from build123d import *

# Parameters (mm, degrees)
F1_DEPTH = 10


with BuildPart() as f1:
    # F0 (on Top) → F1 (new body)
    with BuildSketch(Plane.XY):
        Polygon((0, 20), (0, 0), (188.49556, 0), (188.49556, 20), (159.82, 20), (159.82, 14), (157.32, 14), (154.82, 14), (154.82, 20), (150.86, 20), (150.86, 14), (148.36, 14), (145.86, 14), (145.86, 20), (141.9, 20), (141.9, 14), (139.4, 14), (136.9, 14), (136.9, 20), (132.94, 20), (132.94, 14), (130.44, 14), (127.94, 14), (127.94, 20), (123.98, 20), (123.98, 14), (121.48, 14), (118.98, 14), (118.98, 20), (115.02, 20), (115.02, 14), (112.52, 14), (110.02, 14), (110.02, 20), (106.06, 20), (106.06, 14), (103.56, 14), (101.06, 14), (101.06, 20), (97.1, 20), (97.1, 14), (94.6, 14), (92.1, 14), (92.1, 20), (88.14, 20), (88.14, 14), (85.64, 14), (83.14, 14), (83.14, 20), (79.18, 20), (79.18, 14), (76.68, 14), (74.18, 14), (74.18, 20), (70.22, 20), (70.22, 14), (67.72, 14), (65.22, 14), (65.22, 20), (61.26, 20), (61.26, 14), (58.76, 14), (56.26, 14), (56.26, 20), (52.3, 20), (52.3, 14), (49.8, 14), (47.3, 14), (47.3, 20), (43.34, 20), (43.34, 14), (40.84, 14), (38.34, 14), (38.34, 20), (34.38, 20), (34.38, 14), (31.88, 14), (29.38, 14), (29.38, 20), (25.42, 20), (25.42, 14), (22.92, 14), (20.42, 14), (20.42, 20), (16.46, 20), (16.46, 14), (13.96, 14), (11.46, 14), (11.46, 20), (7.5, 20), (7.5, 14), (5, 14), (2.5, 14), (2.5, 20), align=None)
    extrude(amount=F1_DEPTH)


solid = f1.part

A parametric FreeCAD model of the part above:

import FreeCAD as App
import Part
import Sketcher

V = App.Vector
Q = App.Units.Quantity

doc = App.newDocument("Part")
body = doc.addObject("PartDesign::Body", "Body")

# Sketch on XY plane
sketch1 = body.newObject("Sketcher::SketchObject", "Sketch")
sketch1.AttachmentSupport = (doc.getObject("XY_Plane"), [""])
sketch1.MapMode = "FlatFace"
sketch1.addGeometry([
    Part.LineSegment(V(0, 20, 0), V(0, 0, 0)),  # 0
    Part.LineSegment(V(0, 0, 0), V(188.5, 0, 0)),  # 1
    Part.LineSegment(V(188.5, 0, 0), V(188.5, 20, 0)),  # 2
    Part.LineSegment(V(188.5, 20, 0), V(159.8, 20, 0)),  # 3
    Part.LineSegment(V(159.8, 20, 0), V(159.8, 14, 0)),  # 4
    Part.LineSegment(V(159.8, 14, 0), V(154.8, 14, 0)),  # 5
    Part.LineSegment(V(154.8, 14, 0), V(154.8, 20, 0)),  # 6
    Part.LineSegment(V(154.8, 20, 0), V(150.9, 20, 0)),  # 7
    Part.LineSegment(V(150.9, 20, 0), V(150.9, 14, 0)),  # 8
    Part.LineSegment(V(150.9, 14, 0), V(145.9, 14, 0)),  # 9
    Part.LineSegment(V(145.9, 14, 0), V(145.9, 20, 0)),  # 10
    Part.LineSegment(V(145.9, 20, 0), V(141.9, 20, 0)),  # 11
    Part.LineSegment(V(141.9, 20, 0), V(141.9, 14, 0)),  # 12
    Part.LineSegment(V(141.9, 14, 0), V(136.9, 14, 0)),  # 13
    Part.LineSegment(V(136.9, 14, 0), V(136.9, 20, 0)),  # 14
    Part.LineSegment(V(136.9, 20, 0), V(132.9, 20, 0)),  # 15
    Part.LineSegment(V(132.9, 20, 0), V(132.9, 14, 0)),  # 16
    Part.LineSegment(V(132.9, 14, 0), V(127.9, 14, 0)),  # 17
    Part.LineSegment(V(127.9, 14, 0), V(127.9, 20, 0)),  # 18
    Part.LineSegment(V(127.9, 20, 0), V(124, 20, 0)),  # 19
    Part.LineSegment(V(124, 20, 0), V(124, 14, 0)),  # 20
    Part.LineSegment(V(124, 14, 0), V(119, 14, 0)),  # 21
    Part.LineSegment(V(119, 14, 0), V(119, 20, 0)),  # 22
    Part.LineSegment(V(119, 20, 0), V(115, 20, 0)),  # 23
    Part.LineSegment(V(115, 20, 0), V(115, 14, 0)),  # 24
    Part.LineSegment(V(115, 14, 0), V(110, 14, 0)),  # 25
    Part.LineSegment(V(110, 14, 0), V(110, 20, 0)),  # 26
    Part.LineSegment(V(110, 20, 0), V(106.1, 20, 0)),  # 27
    Part.LineSegment(V(106.1, 20, 0), V(106.1, 14, 0)),  # 28
    Part.LineSegment(V(106.1, 14, 0), V(101.1, 14, 0)),  # 29
    Part.LineSegment(V(101.1, 14, 0), V(101.1, 20, 0)),  # 30
    Part.LineSegment(V(101.1, 20, 0), V(97.1, 20, 0)),  # 31
    Part.LineSegment(V(97.1, 20, 0), V(97.1, 14, 0)),  # 32
    Part.LineSegment(V(97.1, 14, 0), V(92.1, 14, 0)),  # 33
    Part.LineSegment(V(92.1, 14, 0), V(92.1, 20, 0)),  # 34
    Part.LineSegment(V(92.1, 20, 0), V(88.1, 20, 0)),  # 35
    Part.LineSegment(V(88.1, 20, 0), V(88.1, 14, 0)),  # 36
    Part.LineSegment(V(88.1, 14, 0), V(83.1, 14, 0)),  # 37
    Part.LineSegment(V(83.1, 14, 0), V(83.1, 20, 0)),  # 38
    Part.LineSegment(V(83.1, 20, 0), V(79.2, 20, 0)),  # 39
    Part.LineSegment(V(79.2, 20, 0), V(79.2, 14, 0)),  # 40
    Part.LineSegment(V(79.2, 14, 0), V(74.2, 14, 0)),  # 41
    Part.LineSegment(V(74.2, 14, 0), V(74.2, 20, 0)),  # 42
    Part.LineSegment(V(74.2, 20, 0), V(70.2, 20, 0)),  # 43
    Part.LineSegment(V(70.2, 20, 0), V(70.2, 14, 0)),  # 44
    Part.LineSegment(V(70.2, 14, 0), V(65.2, 14, 0)),  # 45
    Part.LineSegment(V(65.2, 14, 0), V(65.2, 20, 0)),  # 46
    Part.LineSegment(V(65.2, 20, 0), V(61.3, 20, 0)),  # 47
    Part.LineSegment(V(61.3, 20, 0), V(61.3, 14, 0)),  # 48
    Part.LineSegment(V(61.3, 14, 0), V(56.3, 14, 0)),  # 49
    Part.LineSegment(V(56.3, 14, 0), V(56.3, 20, 0)),  # 50
    Part.LineSegment(V(56.3, 20, 0), V(52.3, 20, 0)),  # 51
    Part.LineSegment(V(52.3, 20, 0), V(52.3, 14, 0)),  # 52
    Part.LineSegment(V(52.3, 14, 0), V(47.3, 14, 0)),  # 53
    Part.LineSegment(V(47.3, 14, 0), V(47.3, 20, 0)),  # 54
    Part.LineSegment(V(47.3, 20, 0), V(43.3, 20, 0)),  # 55
    Part.LineSegment(V(43.3, 20, 0), V(43.3, 14, 0)),  # 56
    Part.LineSegment(V(43.3, 14, 0), V(38.3, 14, 0)),  # 57
    Part.LineSegment(V(38.3, 14, 0), V(38.3, 20, 0)),  # 58
    Part.LineSegment(V(38.3, 20, 0), V(34.4, 20, 0)),  # 59
    Part.LineSegment(V(34.4, 20, 0), V(34.4, 14, 0)),  # 60
    Part.LineSegment(V(34.4, 14, 0), V(29.4, 14, 0)),  # 61
    Part.LineSegment(V(29.4, 14, 0), V(29.4, 20, 0)),  # 62
    Part.LineSegment(V(29.4, 20, 0), V(25.4, 20, 0)),  # 63
    Part.LineSegment(V(25.4, 20, 0), V(25.4, 14, 0)),  # 64
    Part.LineSegment(V(25.4, 14, 0), V(20.4, 14, 0)),  # 65
    Part.LineSegment(V(20.4, 14, 0), V(20.4, 20, 0)),  # 66
    Part.LineSegment(V(20.4, 20, 0), V(16.5, 20, 0)),  # 67
    Part.LineSegment(V(16.5, 20, 0), V(16.5, 14, 0)),  # 68
    Part.LineSegment(V(16.5, 14, 0), V(11.5, 14, 0)),  # 69
    Part.LineSegment(V(11.5, 14, 0), V(11.5, 20, 0)),  # 70
    Part.LineSegment(V(11.5, 20, 0), V(7.5, 20, 0)),  # 71
    Part.LineSegment(V(7.5, 20, 0), V(7.5, 14, 0)),  # 72
    Part.LineSegment(V(7.5, 14, 0), V(2.5, 14, 0)),  # 73
    Part.LineSegment(V(2.5, 14, 0), V(2.5, 20, 0)),  # 74
    Part.LineSegment(V(2.5, 20, 0), V(0, 20, 0)),  # 75
], False)
sketch1.addConstraint([
    Sketcher.Constraint("Coincident", 0, 2, 1, 1),
    Sketcher.Constraint("Coincident", 1, 2, 2, 1),
    Sketcher.Constraint("Coincident", 2, 2, 3, 1),
    Sketcher.Constraint("Coincident", 3, 2, 4, 1),
    Sketcher.Constraint("Coincident", 4, 2, 5, 1),
    Sketcher.Constraint("Coincident", 5, 2, 6, 1),
    Sketcher.Constraint("Coincident", 6, 2, 7, 1),
    Sketcher.Constraint("Coincident", 7, 2, 8, 1),
    Sketcher.Constraint("Coincident", 8, 2, 9, 1),
    Sketcher.Constraint("Coincident", 9, 2, 10, 1),
    Sketcher.Constraint("Coincident", 10, 2, 11, 1),
    Sketcher.Constraint("Coincident", 11, 2, 12, 1),
    Sketcher.Constraint("Coincident", 12, 2, 13, 1),
    Sketcher.Constraint("Coincident", 13, 2, 14, 1),
    Sketcher.Constraint("Coincident", 14, 2, 15, 1),
    Sketcher.Constraint("Coincident", 15, 2, 16, 1),
    Sketcher.Constraint("Coincident", 16, 2, 17, 1),
    Sketcher.Constraint("Coincident", 17, 2, 18, 1),
    Sketcher.Constraint("Coincident", 18, 2, 19, 1),
    Sketcher.Constraint("Coincident", 19, 2, 20, 1),
    Sketcher.Constraint("Coincident", 20, 2, 21, 1),
    Sketcher.Constraint("Coincident", 21, 2, 22, 1),
    Sketcher.Constraint("Coincident", 22, 2, 23, 1),
    Sketcher.Constraint("Coincident", 23, 2, 24, 1),
    Sketcher.Constraint("Coincident", 24, 2, 25, 1),
    Sketcher.Constraint("Coincident", 25, 2, 26, 1),
    Sketcher.Constraint("Coincident", 26, 2, 27, 1),
    Sketcher.Constraint("Coincident", 27, 2, 28, 1),
    Sketcher.Constraint("Coincident", 28, 2, 29, 1),
    Sketcher.Constraint("Coincident", 29, 2, 30, 1),
    Sketcher.Constraint("Coincident", 30, 2, 31, 1),
    Sketcher.Constraint("Coincident", 31, 2, 32, 1),
    Sketcher.Constraint("Coincident", 32, 2, 33, 1),
    Sketcher.Constraint("Coincident", 33, 2, 34, 1),
    Sketcher.Constraint("Coincident", 34, 2, 35, 1),
    Sketcher.Constraint("Coincident", 35, 2, 36, 1),
    Sketcher.Constraint("Coincident", 36, 2, 37, 1),
    Sketcher.Constraint("Coincident", 37, 2, 38, 1),
    Sketcher.Constraint("Coincident", 38, 2, 39, 1),
    Sketcher.Constraint("Coincident", 39, 2, 40, 1),
    Sketcher.Constraint("Coincident", 40, 2, 41, 1),
    Sketcher.Constraint("Coincident", 41, 2, 42, 1),
    Sketcher.Constraint("Coincident", 42, 2, 43, 1),
    Sketcher.Constraint("Coincident", 43, 2, 44, 1),
    Sketcher.Constraint("Coincident", 44, 2, 45, 1),
    Sketcher.Constraint("Coincident", 45, 2, 46, 1),
    Sketcher.Constraint("Coincident", 46, 2, 47, 1),
    Sketcher.Constraint("Coincident", 47, 2, 48, 1),
    Sketcher.Constraint("Coincident", 48, 2, 49, 1),
    Sketcher.Constraint("Coincident", 49, 2, 50, 1),
    Sketcher.Constraint("Coincident", 50, 2, 51, 1),
    Sketcher.Constraint("Coincident", 51, 2, 52, 1),
    Sketcher.Constraint("Coincident", 52, 2, 53, 1),
    Sketcher.Constraint("Coincident", 53, 2, 54, 1),
    Sketcher.Constraint("Coincident", 54, 2, 55, 1),
    Sketcher.Constraint("Coincident", 55, 2, 56, 1),
    Sketcher.Constraint("Coincident", 56, 2, 57, 1),
    Sketcher.Constraint("Coincident", 57, 2, 58, 1),
    Sketcher.Constraint("Coincident", 58, 2, 59, 1),
    Sketcher.Constraint("Coincident", 59, 2, 60, 1),
    Sketcher.Constraint("Coincident", 60, 2, 61, 1),
    Sketcher.Constraint("Coincident", 61, 2, 62, 1),
    Sketcher.Constraint("Coincident", 62, 2, 63, 1),
    Sketcher.Constraint("Coincident", 63, 2, 64, 1),
    Sketcher.Constraint("Coincident", 64, 2, 65, 1),
    Sketcher.Constraint("Coincident", 65, 2, 66, 1),
    Sketcher.Constraint("Coincident", 66, 2, 67, 1),
    Sketcher.Constraint("Coincident", 67, 2, 68, 1),
    Sketcher.Constraint("Coincident", 68, 2, 69, 1),
    Sketcher.Constraint("Coincident", 69, 2, 70, 1),
    Sketcher.Constraint("Coincident", 70, 2, 71, 1),
    Sketcher.Constraint("Coincident", 71, 2, 72, 1),
    Sketcher.Constraint("Coincident", 72, 2, 73, 1),
    Sketcher.Constraint("Coincident", 73, 2, 74, 1),
    Sketcher.Constraint("Coincident", 74, 2, 75, 1),
    Sketcher.Constraint("Coincident", 75, 2, 0, 1),
    Sketcher.Constraint("Vertical", 0),
    Sketcher.Constraint("Horizontal", 1),
    Sketcher.Constraint("Vertical", 2),
    Sketcher.Constraint("Horizontal", 3),
    Sketcher.Constraint("Vertical", 4),
    Sketcher.Constraint("Horizontal", 5),
    Sketcher.Constraint("Vertical", 6),
    Sketcher.Constraint("Horizontal", 7),
    Sketcher.Constraint("Vertical", 8),
    Sketcher.Constraint("Horizontal", 9),
    Sketcher.Constraint("Vertical", 10),
    Sketcher.Constraint("Horizontal", 11),
    Sketcher.Constraint("Vertical", 12),
    Sketcher.Constraint("Horizontal", 13),
    Sketcher.Constraint("Vertical", 14),
    Sketcher.Constraint("Horizontal", 15),
    Sketcher.Constraint("Vertical", 16),
    Sketcher.Constraint("Horizontal", 17),
    Sketcher.Constraint("Vertical", 18),
    Sketcher.Constraint("Horizontal", 19),
    Sketcher.Constraint("Vertical", 20),
    Sketcher.Constraint("Horizontal", 21),
    Sketcher.Constraint("Vertical", 22),
    Sketcher.Constraint("Horizontal", 23),
    Sketcher.Constraint("Vertical", 24),
    Sketcher.Constraint("Horizontal", 25),
    Sketcher.Constraint("Vertical", 26),
    Sketcher.Constraint("Horizontal", 27),
    Sketcher.Constraint("Vertical", 28),
    Sketcher.Constraint("Horizontal", 29),
    Sketcher.Constraint("Vertical", 30),
    Sketcher.Constraint("Horizontal", 31),
    Sketcher.Constraint("Vertical", 32),
    Sketcher.Constraint("Horizontal", 33),
    Sketcher.Constraint("Vertical", 34),
    Sketcher.Constraint("Horizontal", 35),
    Sketcher.Constraint("Vertical", 36),
    Sketcher.Constraint("Horizontal", 37),
    Sketcher.Constraint("Vertical", 38),
    Sketcher.Constraint("Horizontal", 39),
    Sketcher.Constraint("Vertical", 40),
    Sketcher.Constraint("Horizontal", 41),
    Sketcher.Constraint("Vertical", 42),
    Sketcher.Constraint("Horizontal", 43),
    Sketcher.Constraint("Vertical", 44),
    Sketcher.Constraint("Horizontal", 45),
    Sketcher.Constraint("Vertical", 46),
    Sketcher.Constraint("Horizontal", 47),
    Sketcher.Constraint("Vertical", 48),
    Sketcher.Constraint("Horizontal", 49),
    Sketcher.Constraint("Vertical", 50),
    Sketcher.Constraint("Horizontal", 51),
    Sketcher.Constraint("Vertical", 52),
    Sketcher.Constraint("Horizontal", 53),
    Sketcher.Constraint("Vertical", 54),
    Sketcher.Constraint("Horizontal", 55),
    Sketcher.Constraint("Vertical", 56),
    Sketcher.Constraint("Horizontal", 57),
    Sketcher.Constraint("Vertical", 58),
    Sketcher.Constraint("Horizontal", 59),
    Sketcher.Constraint("Vertical", 60),
    Sketcher.Constraint("Horizontal", 61),
    Sketcher.Constraint("Vertical", 62),
    Sketcher.Constraint("Horizontal", 63),
    Sketcher.Constraint("Vertical", 64),
    Sketcher.Constraint("Horizontal", 65),
    Sketcher.Constraint("Vertical", 66),
    Sketcher.Constraint("Horizontal", 67),
    Sketcher.Constraint("Vertical", 68),
    Sketcher.Constraint("Horizontal", 69),
    Sketcher.Constraint("Vertical", 70),
    Sketcher.Constraint("Horizontal", 71),
    Sketcher.Constraint("Vertical", 72),
    Sketcher.Constraint("Horizontal", 73),
    Sketcher.Constraint("Vertical", 74),
    Sketcher.Constraint("Horizontal", 75),
    Sketcher.Constraint("Coincident", 0, 2, -1, 1),
    Sketcher.Constraint("Horizontal", 3, 2, 6, 2),
    Sketcher.Constraint("Horizontal", 5, 2, 8, 2),
    Sketcher.Constraint("Horizontal", 7, 2, 10, 2),
    Sketcher.Constraint("Horizontal", 9, 2, 12, 2),
    Sketcher.Constraint("Horizontal", 11, 2, 14, 2),
    Sketcher.Constraint("Horizontal", 13, 2, 16, 2),
    Sketcher.Constraint("Horizontal", 15, 2, 18, 2),
    Sketcher.Constraint("Horizontal", 17, 2, 20, 2),
    Sketcher.Constraint("Horizontal", 19, 2, 22, 2),
    Sketcher.Constraint("Horizontal", 21, 2, 24, 2),
    Sketcher.Constraint("Horizontal", 23, 2, 26, 2),
    Sketcher.Constraint("Horizontal", 25, 2, 28, 2),
    Sketcher.Constraint("Horizontal", 27, 2, 30, 2),
    Sketcher.Constraint("Horizontal", 29, 2, 32, 2),
    Sketcher.Constraint("Horizontal", 31, 2, 34, 2),
    Sketcher.Constraint("Horizontal", 33, 2, 36, 2),
    Sketcher.Constraint("Horizontal", 35, 2, 38, 2),
    Sketcher.Constraint("Horizontal", 37, 2, 40, 2),
    Sketcher.Constraint("Horizontal", 39, 2, 42, 2),
    Sketcher.Constraint("Horizontal", 41, 2, 44, 2),
    Sketcher.Constraint("Horizontal", 43, 2, 46, 2),
    Sketcher.Constraint("Horizontal", 45, 2, 48, 2),
    Sketcher.Constraint("Horizontal", 47, 2, 50, 2),
    Sketcher.Constraint("Horizontal", 49, 2, 52, 2),
    Sketcher.Constraint("Horizontal", 51, 2, 54, 2),
    Sketcher.Constraint("Horizontal", 53, 2, 56, 2),
    Sketcher.Constraint("Horizontal", 55, 2, 58, 2),
    Sketcher.Constraint("Horizontal", 57, 2, 60, 2),
    Sketcher.Constraint("Horizontal", 59, 2, 62, 2),
    Sketcher.Constraint("Horizontal", 61, 2, 64, 2),
    Sketcher.Constraint("Horizontal", 63, 2, 66, 2),
    Sketcher.Constraint("Horizontal", 65, 2, 68, 2),
    Sketcher.Constraint("Horizontal", 67, 2, 70, 2),
    Sketcher.Constraint("Horizontal", 69, 2, 72, 2),
    Sketcher.Constraint("Horizontal", 71, 2, 74, 2),
    Sketcher.Constraint("Equal", 5, 9),
    Sketcher.Constraint("Equal", 7, 11),
    Sketcher.Constraint("Equal", 9, 13),
    Sketcher.Constraint("Equal", 11, 15),
    Sketcher.Constraint("Equal", 13, 17),
    Sketcher.Constraint("Equal", 15, 19),
    Sketcher.Constraint("Equal", 17, 21),
    Sketcher.Constraint("Equal", 19, 23),
    Sketcher.Constraint("Equal", 21, 25),
    Sketcher.Constraint("Equal", 23, 27),
    Sketcher.Constraint("Equal", 25, 29),
    Sketcher.Constraint("Equal", 27, 31),
    Sketcher.Constraint("Equal", 29, 33),
    Sketcher.Constraint("Equal", 31, 35),
    Sketcher.Constraint("Equal", 33, 37),
    Sketcher.Constraint("Equal", 35, 39),
    Sketcher.Constraint("Equal", 37, 41),
    Sketcher.Constraint("Equal", 39, 43),
    Sketcher.Constraint("Equal", 41, 45),
    Sketcher.Constraint("Equal", 43, 47),
    Sketcher.Constraint("Equal", 45, 49),
    Sketcher.Constraint("Equal", 47, 51),
    Sketcher.Constraint("Equal", 49, 53),
    Sketcher.Constraint("Equal", 51, 55),
    Sketcher.Constraint("Equal", 53, 57),
    Sketcher.Constraint("Equal", 55, 59),
    Sketcher.Constraint("Equal", 57, 61),
    Sketcher.Constraint("Equal", 59, 63),
    Sketcher.Constraint("Equal", 61, 65),
    Sketcher.Constraint("Equal", 63, 67),
    Sketcher.Constraint("Equal", 65, 69),
    Sketcher.Constraint("Equal", 67, 71),
    Sketcher.Constraint("Equal", 69, 73),
    Sketcher.Constraint("DistanceX", 5, 2, 5, 1, Q("5 mm")),
    Sketcher.Constraint("DistanceY", 0, 2, 0, 1, Q("20 mm")),
    Sketcher.Constraint("DistanceY", 4, 2, 4, 1, Q("6 mm")),
    Sketcher.Constraint("DistanceX", 75, 2, 75, 1, Q("2.5 mm")),
    Sketcher.Constraint("DistanceX", 7, 2, 7, 1, Q("3.96 mm")),
    Sketcher.Constraint("DistanceX", 1, 1, 1, 2, Q("188.49556 mm")),
])
pad1 = body.newObject("PartDesign::Pad", "Pad")
pad1.Profile = sketch1
pad1.Length = 10

doc.recompute()
